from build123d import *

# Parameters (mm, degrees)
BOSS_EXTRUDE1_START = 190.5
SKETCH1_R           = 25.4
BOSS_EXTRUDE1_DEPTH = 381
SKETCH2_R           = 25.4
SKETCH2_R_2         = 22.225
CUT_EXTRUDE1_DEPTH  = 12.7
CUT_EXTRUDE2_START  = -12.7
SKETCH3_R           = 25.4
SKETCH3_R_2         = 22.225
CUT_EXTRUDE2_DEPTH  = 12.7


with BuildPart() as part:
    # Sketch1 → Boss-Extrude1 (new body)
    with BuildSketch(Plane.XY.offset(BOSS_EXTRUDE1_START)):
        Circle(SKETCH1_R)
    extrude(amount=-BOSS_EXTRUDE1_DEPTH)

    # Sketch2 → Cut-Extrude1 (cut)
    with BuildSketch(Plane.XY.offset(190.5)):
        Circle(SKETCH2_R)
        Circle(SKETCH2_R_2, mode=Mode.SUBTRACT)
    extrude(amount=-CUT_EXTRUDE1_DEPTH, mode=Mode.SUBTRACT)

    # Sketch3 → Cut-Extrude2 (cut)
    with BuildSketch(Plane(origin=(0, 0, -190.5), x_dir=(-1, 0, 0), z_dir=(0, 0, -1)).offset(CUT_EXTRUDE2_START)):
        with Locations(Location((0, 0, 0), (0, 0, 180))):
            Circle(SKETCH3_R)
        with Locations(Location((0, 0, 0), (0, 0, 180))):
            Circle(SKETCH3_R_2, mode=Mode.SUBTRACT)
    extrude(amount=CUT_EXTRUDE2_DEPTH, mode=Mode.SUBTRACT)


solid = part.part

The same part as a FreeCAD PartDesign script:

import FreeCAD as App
import Part
import Sketcher
Q = App.Units.Quantity

doc = App.newDocument("Part")
body = doc.addObject("PartDesign::Body", "Body")

sketch1 = doc.addObject("Sketcher::SketchObject", "Sketch")
body.addObject(sketch1)
sketch1.AttachmentSupport = (doc.XY_Plane, [""])
sketch1.MapMode = "FlatFace"
sketch1.AttachmentOffset = App.Placement(App.Vector(0, 0, 7.5 * 25.4), App.Rotation())
sketch1.addGeometry(Part.Circle(App.Vector(0, 0, 0), App.Vector(0, 0, 1), 25), False)
sketch1.addConstraint([
    Sketcher.Constraint("Coincident", 0, 3, -1, 1),
    Sketcher.Constraint("Diameter", 0, Q("2 in")),
])
pad1 = doc.addObject("PartDesign::Pad", "Pad")
body.addObject(pad1)
pad1.Profile = sketch1
pad1.Length = Q("15 in")
pad1.Reversed = True

sketch2 = doc.addObject("Sketcher::SketchObject", "Sketch001")
body.addObject(sketch2)
sketch2.AttachmentSupport = (doc.XY_Plane, [""])
sketch2.MapMode = "FlatFace"
sketch2.AttachmentOffset = App.Placement(App.Vector(0, 0, 7.5 * 25.4), App.Rotation())
sketch2.addGeometry([
    Part.Circle(App.Vector(0, 0, 0), App.Vector(0, 0, 1), 25),
    Part.Circle(App.Vector(0, 0, 0), App.Vector(0, 0, 1), 22),
], False)
sketch2.addConstraint([
    Sketcher.Constraint("Coincident", 0, 3, -1, 1),
    Sketcher.Constraint("Coincident", 1, 3, -1, 1),
    Sketcher.Constraint("Diameter", 0, Q("2 in")),
    Sketcher.Constraint("Diameter", 1, Q("1.75 in")),
])
pocket1 = doc.addObject("PartDesign::Pocket", "Pocket")
body.addObject(pocket1)
pocket1.Profile = sketch2
pocket1.Length = Q("0.5 in")

sketch3 = doc.addObject("Sketcher::SketchObject", "Sketch002")
body.addObject(sketch3)
sketch3.AttachmentSupport = (doc.XY_Plane, [""])
sketch3.MapMode = "FlatFace"
sketch3.AttachmentOffset = App.Placement(App.Vector(0, 0, -7 * 25.4), App.Rotation())
sketch3.addGeometry([
    Part.Circle(App.Vector(0, 0, 0), App.Vector(0, 0, 1), 25),
    Part.Circle(App.Vector(0, 0, 0), App.Vector(0, 0, 1), 22),
], False)
sketch3.addConstraint([
    Sketcher.Constraint("Coincident", 0, 3, -1, 1),
    Sketcher.Constraint("Coincident", 1, 3, -1, 1),
    Sketcher.Constraint("Diameter", 0, Q("2 in")),
    Sketcher.Constraint("Diameter", 1, Q("1.75 in")),
])
pocket2 = doc.addObject("PartDesign::Pocket", "Pocket001")
body.addObject(pocket2)
pocket2.Profile = sketch3
pocket2.Length = Q("0.5 in")

doc.recompute()
